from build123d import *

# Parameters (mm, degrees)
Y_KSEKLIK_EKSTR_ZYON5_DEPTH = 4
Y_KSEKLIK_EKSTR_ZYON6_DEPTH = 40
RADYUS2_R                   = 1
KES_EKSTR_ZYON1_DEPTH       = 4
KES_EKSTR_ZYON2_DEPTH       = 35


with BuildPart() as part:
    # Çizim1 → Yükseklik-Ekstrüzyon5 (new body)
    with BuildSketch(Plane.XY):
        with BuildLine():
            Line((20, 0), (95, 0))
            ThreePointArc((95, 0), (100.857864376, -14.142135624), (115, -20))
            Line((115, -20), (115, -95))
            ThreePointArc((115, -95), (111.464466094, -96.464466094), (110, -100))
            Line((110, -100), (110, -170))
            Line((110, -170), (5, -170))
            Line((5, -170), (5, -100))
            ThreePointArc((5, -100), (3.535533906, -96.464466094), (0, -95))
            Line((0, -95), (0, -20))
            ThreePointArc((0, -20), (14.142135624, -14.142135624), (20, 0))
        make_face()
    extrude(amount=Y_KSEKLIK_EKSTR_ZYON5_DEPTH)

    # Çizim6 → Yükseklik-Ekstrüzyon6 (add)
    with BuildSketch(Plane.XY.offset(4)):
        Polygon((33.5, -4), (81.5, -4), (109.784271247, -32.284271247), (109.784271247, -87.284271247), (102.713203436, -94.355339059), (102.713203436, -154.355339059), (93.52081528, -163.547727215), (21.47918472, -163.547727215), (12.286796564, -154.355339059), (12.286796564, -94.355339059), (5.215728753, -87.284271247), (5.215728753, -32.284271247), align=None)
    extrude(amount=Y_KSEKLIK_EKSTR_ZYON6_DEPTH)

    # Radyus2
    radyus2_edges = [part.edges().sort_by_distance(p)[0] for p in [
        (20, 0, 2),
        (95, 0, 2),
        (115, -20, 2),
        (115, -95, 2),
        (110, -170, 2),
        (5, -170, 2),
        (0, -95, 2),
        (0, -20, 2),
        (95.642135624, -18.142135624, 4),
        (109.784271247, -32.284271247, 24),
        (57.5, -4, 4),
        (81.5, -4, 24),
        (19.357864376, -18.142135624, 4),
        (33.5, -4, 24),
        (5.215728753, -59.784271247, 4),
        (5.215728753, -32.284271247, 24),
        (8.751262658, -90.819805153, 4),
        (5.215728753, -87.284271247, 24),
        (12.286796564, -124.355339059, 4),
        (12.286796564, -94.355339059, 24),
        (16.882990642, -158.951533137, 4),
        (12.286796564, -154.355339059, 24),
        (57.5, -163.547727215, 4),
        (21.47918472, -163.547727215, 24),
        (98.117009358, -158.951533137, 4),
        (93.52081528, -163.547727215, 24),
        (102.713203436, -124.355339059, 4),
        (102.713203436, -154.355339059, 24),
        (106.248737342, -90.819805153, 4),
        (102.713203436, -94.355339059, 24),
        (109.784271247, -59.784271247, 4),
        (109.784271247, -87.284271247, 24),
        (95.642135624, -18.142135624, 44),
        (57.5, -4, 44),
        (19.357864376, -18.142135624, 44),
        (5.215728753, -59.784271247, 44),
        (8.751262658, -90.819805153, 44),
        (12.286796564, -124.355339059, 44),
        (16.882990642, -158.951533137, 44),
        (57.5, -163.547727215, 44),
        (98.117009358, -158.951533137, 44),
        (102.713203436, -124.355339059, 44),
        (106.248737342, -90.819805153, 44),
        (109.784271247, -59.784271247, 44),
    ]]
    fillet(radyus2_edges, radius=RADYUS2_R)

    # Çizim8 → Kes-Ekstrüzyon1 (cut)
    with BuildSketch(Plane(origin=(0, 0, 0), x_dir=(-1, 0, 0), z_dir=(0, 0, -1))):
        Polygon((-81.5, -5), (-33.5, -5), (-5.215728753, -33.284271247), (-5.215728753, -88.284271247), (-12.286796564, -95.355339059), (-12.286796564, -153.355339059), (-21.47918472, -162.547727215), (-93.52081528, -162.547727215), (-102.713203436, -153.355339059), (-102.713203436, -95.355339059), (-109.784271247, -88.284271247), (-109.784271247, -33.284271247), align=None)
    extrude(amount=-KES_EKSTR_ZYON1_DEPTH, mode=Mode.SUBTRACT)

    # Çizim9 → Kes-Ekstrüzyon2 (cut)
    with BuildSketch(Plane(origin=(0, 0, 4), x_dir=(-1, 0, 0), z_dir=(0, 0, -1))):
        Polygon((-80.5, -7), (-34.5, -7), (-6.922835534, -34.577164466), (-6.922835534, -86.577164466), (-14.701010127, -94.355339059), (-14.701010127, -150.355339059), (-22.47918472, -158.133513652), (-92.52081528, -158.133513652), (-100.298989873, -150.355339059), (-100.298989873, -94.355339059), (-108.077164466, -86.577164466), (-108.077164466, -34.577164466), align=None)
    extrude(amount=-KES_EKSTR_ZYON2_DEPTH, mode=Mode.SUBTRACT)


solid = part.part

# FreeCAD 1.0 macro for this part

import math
import FreeCAD as App
import Part
import Sketcher

V = App.Vector
Q = App.Units.Quantity


def edges_at(feature, points):
    """Names of the edges that pass closest to the given points."""
    edges = feature.Shape.Edges
    near = lambda p: min(range(len(edges)), key=lambda i: edges[i].distToShape(Part.Vertex(*p))[0])
    return sorted({f"Edge{near(p) + 1}" for p in points})


def add_polygon(sketch, points):
    """Adds a closed chain of lines whose ends are joined by coincident constraints."""
    first, n = sketch.GeometryCount, len(points)
    for a, b in zip(points, points[1:] + points[:1]):
        sketch.addGeometry(Part.LineSegment(App.Vector(*a, 0), App.Vector(*b, 0)), False)
    for i in range(n):
        sketch.addConstraint(Sketcher.Constraint("Coincident", first + i, 2, first + (i + 1) % n, 1))

doc = App.newDocument("Part")
body = doc.addObject("PartDesign::Body", "Body")

# Sketch on XY plane
sketch1 = doc.addObject("Sketcher::SketchObject", "Sketch")
body.addObject(sketch1)
sketch1.AttachmentSupport = (doc.XY_Plane, [""])
sketch1.MapMode = "FlatFace"
sketch1.addGeometry(Part.LineSegment(V(95, 0, 0), V(20, 0, 0)), False)
sketch1.addGeometry(Part.ArcOfCircle(Part.Circle(V(0, 0, 0), V(0, 0, 1), 20), math.radians(-90), math.radians(0)), False)
sketch1.addGeometry(Part.LineSegment(V(0, -20, 0), V(0, -95, 0)), False)
sketch1.addGeometry(Part.ArcOfCircle(Part.Circle(V(0, -100, 0), V(0, 0, 1), 5), math.radians(0), math.radians(90)), False)
sketch1.addGeometry(Part.LineSegment(V(5, -100, 0), V(5, -170, 0)), False)
sketch1.addGeometry(Part.LineSegment(V(5, -170, 0), V(110, -170, 0)), False)
sketch1.addGeometry(Part.LineSegment(V(110, -170, 0), V(110, -100, 0)), False)
sketch1.addGeometry(Part.ArcOfCircle(Part.Circle(V(115, -100, 0), V(0, 0, 1), 5), math.radians(90), math.radians(180)), False)
sketch1.addGeometry(Part.LineSegment(V(115, -95, 0), V(115, -20, 0)), False)
sketch1.addGeometry(Part.ArcOfCircle(Part.Circle(V(115, 0, 0), V(0, 0, 1), 20), math.radians(180), math.radians(270)), False)
sketch1.addConstraint(Sketcher.Constraint("Coincident", 0, 2, 1, 2))
sketch1.addConstraint(Sketcher.Constraint("Coincident", 1, 1, 2, 1))
sketch1.addConstraint(Sketcher.Constraint("Coincident", 2, 2, 3, 2))
sketch1.addConstraint(Sketcher.Constraint("Tangent", 3, 1, 4, 1))
sketch1.addConstraint(Sketcher.Constraint("Coincident", 4, 2, 5, 1))
sketch1.addConstraint(Sketcher.Constraint("Coincident", 5, 2, 6, 1))
sketch1.addConstraint(Sketcher.Constraint("Tangent", 6, 2, 7, 2))
sketch1.addConstraint(Sketcher.Constraint("Coincident", 7, 1, 8, 1))
sketch1.addConstraint(Sketcher.Constraint("Coincident", 8, 2, 9, 2))
sketch1.addConstraint(Sketcher.Constraint("Coincident", 9, 1, 0, 1))
sketch1.addConstraint(Sketcher.Constraint("Horizontal", 0))
sketch1.addConstraint(Sketcher.Constraint("Vertical", 2))
sketch1.addConstraint(Sketcher.Constraint("Vertical", 4))
sketch1.addConstraint(Sketcher.Constraint("Horizontal", 5))
sketch1.addConstraint(Sketcher.Constraint("Vertical", 6))
sketch1.addConstraint(Sketcher.Constraint("Vertical", 8))
sketch1.addConstraint(Sketcher.Constraint("Coincident", 1, 3, -1, 1))
sketch1.addConstraint(Sketcher.Constraint("Equal", 3, 7))
sketch1.addConstraint(Sketcher.Constraint("Equal", 1, 9))
sketch1.addConstraint(Sketcher.Constraint("PointOnObject", 3, 3, -2))
sketch1.addConstraint(Sketcher.Constraint("PointOnObject", 9, 3, -1))
sketch1.addConstraint(Sketcher.Constraint("PointOnObject", 0, 2, -1))
sketch1.addConstraint(Sketcher.Constraint("PointOnObject", 1, 1, -2))
sketch1.addConstraint(Sketcher.Constraint("Horizontal", 3, 3, 7, 3))
sketch1.addConstraint(Sketcher.Constraint("Vertical", 7, 3, 9, 3))
sketch1.addConstraint(Sketcher.Constraint("Vertical", 9, 3, 7, 1))
sketch1.addConstraint(Sketcher.Constraint("Equal", 0, 2))
sketch1.addConstraint(Sketcher.Constraint("Radius", 1, Q("20 mm")))
sketch1.addConstraint(Sketcher.Constraint("Radius", 3, Q("5 mm")))
sketch1.addConstraint(Sketcher.Constraint("DistanceX", 0, 2, 0, 1, Q("75 mm")))
sketch1.addConstraint(Sketcher.Constraint("DistanceY", 4, 2, 4, 1, Q("70 mm")))
pad1 = doc.addObject("PartDesign::Pad", "Pad")
body.addObject(pad1)
pad1.Profile = sketch1
pad1.Length = 4

# Sketch on XY plane
sketch2 = doc.addObject("Sketcher::SketchObject", "Sketch001")
body.addObject(sketch2)
sketch2.AttachmentSupport = (doc.XY_Plane, [""])
sketch2.MapMode = "FlatFace"
sketch2.AttachmentOffset = App.Placement(V(0, 0, 4), App.Rotation())
add_polygon(sketch2, [(82, -4), (34, -4), (5, -32), (5, -87), (12, -94), (12, -154), (21, -164), (94, -164), (103, -154), (103, -94), (110, -87), (110, -32)])  # lines 0-11
sketch2.addConstraint(Sketcher.Constraint("Horizontal", 0))
sketch2.addConstraint(Sketcher.Constraint("Vertical", 2))
sketch2.addConstraint(Sketcher.Constraint("Vertical", 4))
sketch2.addConstraint(Sketcher.Constraint("Horizontal", 6))
sketch2.addConstraint(Sketcher.Constraint("Vertical", 8))
sketch2.addConstraint(Sketcher.Constraint("Vertical", 10))
sketch2.addConstraint(Sketcher.Constraint("Perpendicular", 1, 3))
sketch2.addConstraint(Sketcher.Constraint("Parallel", 3, 5))
sketch2.addConstraint(Sketcher.Constraint("Perpendicular", 5, 7))
sketch2.addConstraint(Sketcher.Constraint("Parallel", 7, 9))
sketch2.addConstraint(Sketcher.Constraint("Perpendicular", 9, 11))
sketch2.addConstraint(Sketcher.Constraint("Horizontal", 4, 2, 7, 2))
sketch2.addConstraint(Sketcher.Constraint("Horizontal", 3, 2, 8, 2))
sketch2.addConstraint(Sketcher.Constraint("Horizontal", 2, 2, 9, 2))
sketch2.addConstraint(Sketcher.Constraint("Horizontal", 1, 2, 10, 2))
sketch2.addConstraint(Sketcher.Constraint("Equal", 5, 7))
sketch2.addConstraint(Sketcher.Constraint("DistanceX", 0, 2, 0, 1, Q("48 mm")))
sketch2.addConstraint(Sketcher.Constraint("DistanceY", 2, 2, 2, 1, Q("55 mm")))
sketch2.addConstraint(Sketcher.Constraint("DistanceY", 4, 2, 4, 1, Q("60 mm")))
sketch2.addConstraint(Sketcher.Constraint("Distance", 1, Q("40 mm")))
sketch2.addConstraint(Sketcher.Constraint("Distance", 3, Q("10 mm")))
sketch2.addConstraint(Sketcher.Constraint("Distance", 5, Q("13 mm")))
sketch2.addConstraint(Sketcher.Constraint("DistanceY", 0, 2, -1, 1, Q("4 mm")))
sketch2.addConstraint(Sketcher.Constraint("DistanceX", -1, 1, 0, 2, Q("33.5 mm")))
pad2 = doc.addObject("PartDesign::Pad", "Pad001")
body.addObject(pad2)
pad2.Profile = sketch2
pad2.Length = 40
doc.recompute()

fillet = doc.addObject("PartDesign::Fillet", "Fillet")
body.addObject(fillet)
fillet.Base = (pad2, edges_at(pad2, [
    (20, 0, 2),
    (95, 0, 2),
    (115, -20, 2),
    (115, -95, 2),
    (110, -170, 2),
    (5, -170, 2),
    (0, -95, 2),
    (0, -20, 2),
    (95.642, -18.142, 4),
    (109.784, -32.284, 24),
    (57.5, -4, 4),
    (81.5, -4, 24),
    (19.358, -18.142, 4),
    (33.5, -4, 24),
    (5.216, -59.784, 4),
    (5.216, -32.284, 24),
    (8.751, -90.82, 4),
    (5.216, -87.284, 24),
    (12.287, -124.355, 4),
    (12.287, -94.355, 24),
    (16.883, -158.952, 4),
    (12.287, -154.355, 24),
    (57.5, -163.548, 4),
    (21.479, -163.548, 24),
    (98.117, -158.952, 4),
    (93.521, -163.548, 24),
    (102.713, -124.355, 4),
    (102.713, -154.355, 24),
    (106.249, -90.82, 4),
    (102.713, -94.355, 24),
    (109.784, -59.784, 4),
    (109.784, -87.284, 24),
    (95.642, -18.142, 44),
    (57.5, -4, 44),
    (19.358, -18.142, 44),
    (5.216, -59.784, 44),
    (8.751, -90.82, 44),
    (12.287, -124.355, 44),
    (16.883, -158.952, 44),
    (57.5, -163.548, 44),
    (98.117, -158.952, 44),
    (102.713, -124.355, 44),
    (106.249, -90.82, 44),
    (109.784, -59.784, 44),
]))
fillet.Radius = 1

# Sketch on XY plane
sketch3 = doc.addObject("Sketcher::SketchObject", "Sketch002")
body.addObject(sketch3)
sketch3.AttachmentSupport = (doc.XY_Plane, [""])
sketch3.MapMode = "FlatFace"
add_polygon(sketch3, [(34, -5), (82, -5), (110, -33), (110, -88), (103, -95), (103, -153), (94, -163), (21, -163), (12, -153), (12, -95), (5, -88), (5, -33)])  # lines 0-11
sketch3.addConstraint(Sketcher.Constraint("Horizontal", 0))
sketch3.addConstraint(Sketcher.Constraint("Vertical", 2))
sketch3.addConstraint(Sketcher.Constraint("Vertical", 4))
sketch3.addConstraint(Sketcher.Constraint("Horizontal", 6))
sketch3.addConstraint(Sketcher.Constraint("Vertical", 8))
sketch3.addConstraint(Sketcher.Constraint("Vertical", 10))
sketch3.addConstraint(Sketcher.Constraint("Perpendicular", 1, 3))
sketch3.addConstraint(Sketcher.Constraint("Parallel", 3, 5))
sketch3.addConstraint(Sketcher.Constraint("Perpendicular", 5, 7))
sketch3.addConstraint(Sketcher.Constraint("Parallel", 7, 9))
sketch3.addConstraint(Sketcher.Constraint("Perpendicular", 9, 11))
sketch3.addConstraint(Sketcher.Constraint("Horizontal", 4, 2, 7, 2))
sketch3.addConstraint(Sketcher.Constraint("Horizontal", 3, 2, 8, 2))
sketch3.addConstraint(Sketcher.Constraint("Horizontal", 2, 2, 9, 2))
sketch3.addConstraint(Sketcher.Constraint("Horizontal", 1, 2, 10, 2))
sketch3.addConstraint(Sketcher.Constraint("Equal", 5, 7))
sketch3.addConstraint(Sketcher.Constraint("DistanceX", 0, 1, 0, 2, Q("48 mm")))
sketch3.addConstraint(Sketcher.Constraint("DistanceY", 2, 2, 2, 1, Q("55 mm")))
sketch3.addConstraint(Sketcher.Constraint("DistanceY", 4, 2, 4, 1, Q("58 mm")))
sketch3.addConstraint(Sketcher.Constraint("Distance", 1, Q("40 mm")))
sketch3.addConstraint(Sketcher.Constraint("Distance", 3, Q("10 mm")))
sketch3.addConstraint(Sketcher.Constraint("Distance", 5, Q("13 mm")))
sketch3.addConstraint(Sketcher.Constraint("DistanceY", 0, 2, -1, 1, Q("5 mm")))
sketch3.addConstraint(Sketcher.Constraint("DistanceX", -1, 1, 0, 2, Q("81.5 mm")))
pocket1 = doc.addObject("PartDesign::Pocket", "Pocket")
body.addObject(pocket1)
pocket1.Profile = sketch3
pocket1.Length = 4
pocket1.Reversed = True

# Sketch on XY plane
sketch4 = doc.addObject("Sketcher::SketchObject", "Sketch003")
body.addObject(sketch4)
sketch4.AttachmentSupport = (doc.XY_Plane, [""])
sketch4.MapMode = "FlatFace"
sketch4.AttachmentOffset = App.Placement(V(0, 0, 4), App.Rotation())
add_polygon(sketch4, [(34, -7), (80, -7), (108, -35), (108, -87), (100, -94), (100, -150), (93, -158), (22, -158), (15, -150), (15, -94), (7, -87), (7, -35)])  # lines 0-11
sketch4.addConstraint(Sketcher.Constraint("Horizontal", 0))
sketch4.addConstraint(Sketcher.Constraint("Vertical", 2))
sketch4.addConstraint(Sketcher.Constraint("Vertical", 4))
sketch4.addConstraint(Sketcher.Constraint("Horizontal", 6))
sketch4.addConstraint(Sketcher.Constraint("Vertical", 8))
sketch4.addConstraint(Sketcher.Constraint("Vertical", 10))
sketch4.addConstraint(Sketcher.Constraint("Perpendicular", 1, 3))
sketch4.addConstraint(Sketcher.Constraint("Parallel", 3, 5))
sketch4.addConstraint(Sketcher.Constraint("Perpendicular", 5, 7))
sketch4.addConstraint(Sketcher.Constraint("Parallel", 7, 9))
sketch4.addConstraint(Sketcher.Constraint("Perpendicular", 9, 11))
sketch4.addConstraint(Sketcher.Constraint("Horizontal", 4, 2, 7, 2))
sketch4.addConstraint(Sketcher.Constraint("Horizontal", 3, 2, 8, 2))
sketch4.addConstraint(Sketcher.Constraint("Horizontal", 2, 2, 9, 2))
sketch4.addConstraint(Sketcher.Constraint("Horizontal", 1, 2, 10, 2))
sketch4.addConstraint(Sketcher.Constraint("Equal", 3, 5))
sketch4.addConstraint(Sketcher.Constraint("Equal", 5, 7))
sketch4.addConstraint(Sketcher.Constraint("DistanceX", 0, 1, 0, 2, Q("46 mm")))
sketch4.addConstraint(Sketcher.Constraint("DistanceY", 2, 2, 2, 1, Q("52 mm")))
sketch4.addConstraint(Sketcher.Constraint("DistanceY", 4, 2, 4, 1, Q("56 mm")))
sketch4.addConstraint(Sketcher.Constraint("Distance", 1, Q("39 mm")))
sketch4.addConstraint(Sketcher.Constraint("Distance", 3, Q("11 mm")))
sketch4.addConstraint(Sketcher.Constraint("DistanceY", 0, 2, -1, 1, Q("7 mm")))
sketch4.addConstraint(Sketcher.Constraint("DistanceX", -1, 1, 0, 2, Q("80.5 mm")))
pocket2 = doc.addObject("PartDesign::Pocket", "Pocket001")
body.addObject(pocket2)
pocket2.Profile = sketch4
pocket2.Length = 35
pocket2.Reversed = True

doc.recompute()
